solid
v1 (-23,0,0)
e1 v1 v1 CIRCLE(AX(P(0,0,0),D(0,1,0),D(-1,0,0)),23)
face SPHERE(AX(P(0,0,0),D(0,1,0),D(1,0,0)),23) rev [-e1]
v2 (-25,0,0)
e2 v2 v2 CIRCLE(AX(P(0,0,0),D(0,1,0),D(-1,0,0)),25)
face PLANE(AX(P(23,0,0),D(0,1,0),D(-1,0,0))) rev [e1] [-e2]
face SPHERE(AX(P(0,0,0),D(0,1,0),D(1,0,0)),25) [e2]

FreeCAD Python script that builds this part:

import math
import FreeCAD as App
import Part
import Sketcher

doc = App.newDocument("Part")
body = doc.addObject("PartDesign::Body", "Body")

sketch1 = body.newObject("Sketcher::SketchObject", "Sketch")
sketch1.AttachmentSupport = (doc.getObject("XY_Plane"), [""])
sketch1.MapMode = "FlatFace"
sketch1.addGeometry([
    Part.LineSegment(App.Vector(0, 25, 0), App.Vector(0, 23, 0)),
    Part.ArcOfCircle(Part.Circle(App.Vector(0, 0, 0), App.Vector(0, 0, 1), 23), math.radians(0), math.radians(90)),
    Part.LineSegment(App.Vector(23, 0, 0), App.Vector(25, 0, 0)),
    Part.ArcOfCircle(Part.Circle(App.Vector(0, 0, 0), App.Vector(0, 0, 1), 25), math.radians(0), math.radians(90)),
], False)
sketch1.addConstraint([
    Sketcher.Constraint("Coincident", 0, 2, 1, 2),
    Sketcher.Constraint("Coincident", 1, 1, 2, 1),
    Sketcher.Constraint("Coincident", 2, 2, 3, 1),
    Sketcher.Constraint("Coincident", 3, 2, 0, 1),
    Sketcher.Constraint("Vertical", 0),
    Sketcher.Constraint("Horizontal", 2),
    Sketcher.Constraint("Coincident", 1, 3, -1, 1),
    Sketcher.Constraint("Coincident", 3, 3, -1, 1),
    Sketcher.Constraint("PointOnObject", 0, 2, -2),
    Sketcher.Constraint("PointOnObject", 1, 1, -1),
    Sketcher.Constraint("Radius", 1, 23.0),
    Sketcher.Constraint("Radius", 3, 25.0),
])
revolution = body.newObject("PartDesign::Revolution", "Revolution")
revolution.Profile = sketch1
revolution.ReferenceAxis = (sketch1, ["V_Axis"])
revolution.Angle = 360

doc.recompute()
